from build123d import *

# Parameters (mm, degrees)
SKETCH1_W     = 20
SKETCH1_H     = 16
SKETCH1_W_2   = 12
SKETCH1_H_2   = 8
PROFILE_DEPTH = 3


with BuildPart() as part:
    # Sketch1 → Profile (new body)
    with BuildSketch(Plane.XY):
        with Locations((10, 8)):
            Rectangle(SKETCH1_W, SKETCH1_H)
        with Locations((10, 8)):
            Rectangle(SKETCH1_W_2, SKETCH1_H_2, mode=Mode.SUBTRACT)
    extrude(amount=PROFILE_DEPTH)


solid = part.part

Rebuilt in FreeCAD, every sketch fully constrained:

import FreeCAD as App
import Part
import Sketcher

V = App.Vector
Q = App.Units.Quantity


def add_polygon(sketch, points):
    """Adds a closed chain of lines whose ends are joined by coincident constraints."""
    first, n = sketch.GeometryCount, len(points)
    for a, b in zip(points, points[1:] + points[:1]):
        sketch.addGeometry(Part.LineSegment(App.Vector(*a, 0), App.Vector(*b, 0)), False)
    for i in range(n):
        sketch.addConstraint(Sketcher.Constraint("Coincident", first + i, 2, first + (i + 1) % n, 1))

doc = App.newDocument("Part")
body = doc.addObject("PartDesign::Body", "Body")

# Sketch on XY plane
sketch1 = body.newObject("Sketcher::SketchObject", "Sketch")
sketch1.AttachmentSupport = (doc.getObject("XY_Plane"), [""])
sketch1.MapMode = "FlatFace"
add_polygon(sketch1, [(0, 16), (0, 0), (20, 0), (20, 16)])  # lines 0-3
add_polygon(sketch1, [(16, 4), (4, 4), (4, 12), (16, 12)])  # lines 4-7
sketch1.addConstraint(Sketcher.Constraint("Vertical", 0))
sketch1.addConstraint(Sketcher.Constraint("Horizontal", 1))
sketch1.addConstraint(Sketcher.Constraint("Vertical", 2))
sketch1.addConstraint(Sketcher.Constraint("Horizontal", 3))
sketch1.addConstraint(Sketcher.Constraint("Horizontal", 4))
sketch1.addConstraint(Sketcher.Constraint("Vertical", 5))
sketch1.addConstraint(Sketcher.Constraint("Horizontal", 6))
sketch1.addConstraint(Sketcher.Constraint("Vertical", 7))
sketch1.addConstraint(Sketcher.Constraint("Coincident", 0, 2, -1, 1))
sketch1.addConstraint(Sketcher.Constraint("DistanceX", 1, 1, 1, 2, Q("20 mm")))
sketch1.addConstraint(Sketcher.Constraint("DistanceX", 4, 2, 4, 1, Q("12 mm")))
sketch1.addConstraint(Sketcher.Constraint("DistanceY", 0, 2, 0, 1, Q("16 mm")))
sketch1.addConstraint(Sketcher.Constraint("DistanceY", 5, 1, 5, 2, Q("8 mm")))
sketch1.addConstraint(Sketcher.Constraint("DistanceX", -1, 1, 4, 2, Q("4 mm")))
sketch1.addConstraint(Sketcher.Constraint("DistanceY", -1, 1, 4, 2, Q("4 mm")))
pad1 = body.newObject("PartDesign::Pad", "Pad")
pad1.Profile = sketch1
pad1.Length = 3

doc.recompute()
